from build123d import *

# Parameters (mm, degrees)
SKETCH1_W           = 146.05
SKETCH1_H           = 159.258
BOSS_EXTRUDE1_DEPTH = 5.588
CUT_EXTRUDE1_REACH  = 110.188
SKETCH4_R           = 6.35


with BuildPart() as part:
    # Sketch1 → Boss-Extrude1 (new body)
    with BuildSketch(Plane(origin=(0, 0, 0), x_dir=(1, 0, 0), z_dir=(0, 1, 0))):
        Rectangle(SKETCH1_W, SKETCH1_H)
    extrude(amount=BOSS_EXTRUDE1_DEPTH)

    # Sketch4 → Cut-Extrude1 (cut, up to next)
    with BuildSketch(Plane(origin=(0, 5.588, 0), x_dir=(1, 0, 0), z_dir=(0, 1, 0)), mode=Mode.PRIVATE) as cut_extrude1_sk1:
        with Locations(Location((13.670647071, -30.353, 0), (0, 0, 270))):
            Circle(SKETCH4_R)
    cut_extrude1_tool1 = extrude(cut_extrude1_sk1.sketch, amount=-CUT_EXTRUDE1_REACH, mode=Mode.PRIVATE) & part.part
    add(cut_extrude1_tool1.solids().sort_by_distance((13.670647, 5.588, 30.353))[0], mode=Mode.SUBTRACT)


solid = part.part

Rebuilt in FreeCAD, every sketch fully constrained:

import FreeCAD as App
import Part
import Sketcher
from FreeCAD import Vector
Q = App.Units.Quantity


def add_polygon(sketch, points):
    """Adds a closed chain of lines whose ends are joined by coincident constraints."""
    first, n = sketch.GeometryCount, len(points)
    for a, b in zip(points, points[1:] + points[:1]):
        sketch.addGeometry(Part.LineSegment(App.Vector(*a, 0), App.Vector(*b, 0)), False)
    for i in range(n):
        sketch.addConstraint(Sketcher.Constraint("Coincident", first + i, 2, first + (i + 1) % n, 1))

doc = App.newDocument("Part")
params = doc.addObject("Spreadsheet::Sheet", "Params")
for row, (alias, value) in enumerate([
    ("sketch1_width", "5.75 in"),
    ("sketch1_height", "6.27 in"),
    ("pad1_length", "0.22 in"),
    ("sketch2_diameter", "0.5 in"),
], start=1):
    params.set(f"A{row}", alias)
    params.set(f"B{row}", "=" + value)
    params.setAlias(f"B{row}", alias)

body = doc.addObject("PartDesign::Body", "Body")

sketch1 = doc.addObject("Sketcher::SketchObject", "Sketch")
body.addObject(sketch1)
sketch1.AttachmentSupport = (doc.XZ_Plane, [""])
sketch1.MapMode = "FlatFace"
add_polygon(sketch1, [(-73, -80), (-73, 80), (73, 80), (73, -80)])
sketch1.addConstraint(Sketcher.Constraint("Vertical", 0))
sketch1.addConstraint(Sketcher.Constraint("Horizontal", 1))
sketch1.addConstraint(Sketcher.Constraint("Vertical", 2))
sketch1.addConstraint(Sketcher.Constraint("Horizontal", 3))
sketch1.addConstraint(Sketcher.Constraint("Symmetric", 0, 2, 2, 2, -1, 1))
sketch1.addConstraint(Sketcher.Constraint("DistanceX", 1, 1, 1, 2, Q("5.75 in")))
sketch1.addConstraint(Sketcher.Constraint("DistanceY", 0, 1, 0, 2, Q("6.27 in")))
sketch1.setExpression("Constraints[9]", "Params.sketch1_width")
sketch1.setExpression("Constraints[10]", "Params.sketch1_height")
pad1 = doc.addObject("PartDesign::Pad", "Pad")
body.addObject(pad1)
pad1.Profile = sketch1
pad1.setExpression("Length", "Params.pad1_length")
pad1.Reversed = True

sketch2 = doc.addObject("Sketcher::SketchObject", "Sketch001")
body.addObject(sketch2)
sketch2.AttachmentSupport = (doc.XZ_Plane, [""])
sketch2.MapMode = "FlatFace"
sketch2.AttachmentOffset = App.Placement(Vector(0, 0, -0.22 * 25.4), App.Rotation())
sketch2.addGeometry(Part.Circle(Vector(14, 30, 0), Vector(0, 0, 1), 6), False)
sketch2.addConstraint(Sketcher.Constraint("Diameter", 0, Q("0.5 in")))
sketch2.addConstraint(Sketcher.Constraint("DistanceY", -1, 1, 0, 3, Q("1.195 in")))
sketch2.addConstraint(Sketcher.Constraint("DistanceX", -1, 1, 0, 3, Q("13.670647 mm")))
sketch2.setExpression("Constraints[0]", "Params.sketch2_diameter")
pocket1 = doc.addObject("PartDesign::Pocket", "Pocket")
body.addObject(pocket1)
pocket1.Profile = sketch2
pocket1.Type = "UpToFirst"
pocket1.Reversed = True

doc.recompute()
